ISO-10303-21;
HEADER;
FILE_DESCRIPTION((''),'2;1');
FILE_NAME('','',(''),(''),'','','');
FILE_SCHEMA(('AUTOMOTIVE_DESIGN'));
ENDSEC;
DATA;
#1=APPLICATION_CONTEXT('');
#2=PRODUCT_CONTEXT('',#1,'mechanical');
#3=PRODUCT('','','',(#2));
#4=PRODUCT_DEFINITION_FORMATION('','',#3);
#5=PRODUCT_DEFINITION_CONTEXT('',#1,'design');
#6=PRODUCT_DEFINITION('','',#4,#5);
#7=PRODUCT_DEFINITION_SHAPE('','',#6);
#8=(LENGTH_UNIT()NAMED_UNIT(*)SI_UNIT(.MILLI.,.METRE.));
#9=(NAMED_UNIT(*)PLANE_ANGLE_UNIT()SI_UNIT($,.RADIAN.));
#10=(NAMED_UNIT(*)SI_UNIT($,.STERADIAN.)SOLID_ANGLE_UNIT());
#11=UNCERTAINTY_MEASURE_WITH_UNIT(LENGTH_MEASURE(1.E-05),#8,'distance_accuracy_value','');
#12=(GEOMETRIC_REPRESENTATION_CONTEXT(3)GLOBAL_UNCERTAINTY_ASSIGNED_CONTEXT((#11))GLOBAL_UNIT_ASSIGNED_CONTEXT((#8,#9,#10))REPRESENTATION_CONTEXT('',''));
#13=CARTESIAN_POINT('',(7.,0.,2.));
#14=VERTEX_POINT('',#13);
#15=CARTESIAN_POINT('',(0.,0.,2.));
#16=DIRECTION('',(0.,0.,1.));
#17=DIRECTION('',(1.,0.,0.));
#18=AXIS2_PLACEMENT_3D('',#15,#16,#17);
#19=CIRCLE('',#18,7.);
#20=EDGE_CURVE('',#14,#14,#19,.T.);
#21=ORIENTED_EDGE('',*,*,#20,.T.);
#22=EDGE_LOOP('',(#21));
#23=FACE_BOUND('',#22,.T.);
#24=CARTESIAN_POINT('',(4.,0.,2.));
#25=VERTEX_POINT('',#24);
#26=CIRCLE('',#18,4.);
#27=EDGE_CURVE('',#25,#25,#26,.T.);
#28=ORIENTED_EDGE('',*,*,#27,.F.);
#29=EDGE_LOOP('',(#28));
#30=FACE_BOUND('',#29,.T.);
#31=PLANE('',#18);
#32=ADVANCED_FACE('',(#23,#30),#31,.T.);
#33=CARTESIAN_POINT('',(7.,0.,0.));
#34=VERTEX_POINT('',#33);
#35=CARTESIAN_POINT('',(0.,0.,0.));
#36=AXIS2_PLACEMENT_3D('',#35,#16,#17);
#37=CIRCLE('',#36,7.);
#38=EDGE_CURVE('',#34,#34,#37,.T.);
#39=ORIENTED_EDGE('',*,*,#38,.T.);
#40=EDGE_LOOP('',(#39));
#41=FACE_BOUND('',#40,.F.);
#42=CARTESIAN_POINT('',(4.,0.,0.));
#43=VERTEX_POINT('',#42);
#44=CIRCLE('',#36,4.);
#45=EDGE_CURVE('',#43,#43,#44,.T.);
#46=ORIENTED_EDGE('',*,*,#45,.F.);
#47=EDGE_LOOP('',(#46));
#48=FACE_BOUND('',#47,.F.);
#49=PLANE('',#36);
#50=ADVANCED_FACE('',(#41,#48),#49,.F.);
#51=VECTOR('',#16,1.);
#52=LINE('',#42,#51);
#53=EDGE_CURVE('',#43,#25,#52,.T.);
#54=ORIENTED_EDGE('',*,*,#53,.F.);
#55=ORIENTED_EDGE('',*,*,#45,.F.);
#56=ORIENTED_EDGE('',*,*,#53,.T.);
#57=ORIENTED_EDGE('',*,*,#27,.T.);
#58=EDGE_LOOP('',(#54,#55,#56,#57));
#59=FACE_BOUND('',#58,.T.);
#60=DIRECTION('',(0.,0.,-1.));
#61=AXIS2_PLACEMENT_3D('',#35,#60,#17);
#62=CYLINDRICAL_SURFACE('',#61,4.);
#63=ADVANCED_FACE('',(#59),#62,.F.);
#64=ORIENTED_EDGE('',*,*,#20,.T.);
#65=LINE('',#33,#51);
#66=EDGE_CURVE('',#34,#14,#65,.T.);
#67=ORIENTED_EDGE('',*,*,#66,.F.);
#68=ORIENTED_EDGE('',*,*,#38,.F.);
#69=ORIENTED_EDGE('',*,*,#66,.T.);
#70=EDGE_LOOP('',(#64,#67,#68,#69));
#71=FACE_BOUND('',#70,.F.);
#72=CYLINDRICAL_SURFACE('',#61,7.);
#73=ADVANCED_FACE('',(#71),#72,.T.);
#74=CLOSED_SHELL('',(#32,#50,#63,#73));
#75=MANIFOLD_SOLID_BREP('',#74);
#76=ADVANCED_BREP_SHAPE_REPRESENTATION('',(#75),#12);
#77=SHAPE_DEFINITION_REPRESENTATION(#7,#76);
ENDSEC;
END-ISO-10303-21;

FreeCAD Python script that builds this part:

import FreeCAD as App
import Part
import Sketcher

V = App.Vector
Q = App.Units.Quantity

doc = App.newDocument("Part")
body = doc.addObject("PartDesign::Body", "Body")

# Sketch on XY plane
sketch1 = body.newObject("Sketcher::SketchObject", "Sketch")
sketch1.AttachmentSupport = (doc.getObject("XY_Plane"), [""])
sketch1.MapMode = "FlatFace"
sketch1.addGeometry([
    Part.Circle(V(0, 0, 0), V(0, 0, 1), 7),
    Part.Circle(V(0, 0, 0), V(0, 0, 1), 4),
], False)
sketch1.addConstraint([
    Sketcher.Constraint("Coincident", 0, 3, -1, 1),
    Sketcher.Constraint("Coincident", 1, 3, -1, 1),
    Sketcher.Constraint("Diameter", 0, Q("14 mm")),
    Sketcher.Constraint("Diameter", 1, Q("8 mm")),
])
pad1 = body.newObject("PartDesign::Pad", "Pad")
pad1.Profile = sketch1
pad1.Length = 2

doc.recompute()
